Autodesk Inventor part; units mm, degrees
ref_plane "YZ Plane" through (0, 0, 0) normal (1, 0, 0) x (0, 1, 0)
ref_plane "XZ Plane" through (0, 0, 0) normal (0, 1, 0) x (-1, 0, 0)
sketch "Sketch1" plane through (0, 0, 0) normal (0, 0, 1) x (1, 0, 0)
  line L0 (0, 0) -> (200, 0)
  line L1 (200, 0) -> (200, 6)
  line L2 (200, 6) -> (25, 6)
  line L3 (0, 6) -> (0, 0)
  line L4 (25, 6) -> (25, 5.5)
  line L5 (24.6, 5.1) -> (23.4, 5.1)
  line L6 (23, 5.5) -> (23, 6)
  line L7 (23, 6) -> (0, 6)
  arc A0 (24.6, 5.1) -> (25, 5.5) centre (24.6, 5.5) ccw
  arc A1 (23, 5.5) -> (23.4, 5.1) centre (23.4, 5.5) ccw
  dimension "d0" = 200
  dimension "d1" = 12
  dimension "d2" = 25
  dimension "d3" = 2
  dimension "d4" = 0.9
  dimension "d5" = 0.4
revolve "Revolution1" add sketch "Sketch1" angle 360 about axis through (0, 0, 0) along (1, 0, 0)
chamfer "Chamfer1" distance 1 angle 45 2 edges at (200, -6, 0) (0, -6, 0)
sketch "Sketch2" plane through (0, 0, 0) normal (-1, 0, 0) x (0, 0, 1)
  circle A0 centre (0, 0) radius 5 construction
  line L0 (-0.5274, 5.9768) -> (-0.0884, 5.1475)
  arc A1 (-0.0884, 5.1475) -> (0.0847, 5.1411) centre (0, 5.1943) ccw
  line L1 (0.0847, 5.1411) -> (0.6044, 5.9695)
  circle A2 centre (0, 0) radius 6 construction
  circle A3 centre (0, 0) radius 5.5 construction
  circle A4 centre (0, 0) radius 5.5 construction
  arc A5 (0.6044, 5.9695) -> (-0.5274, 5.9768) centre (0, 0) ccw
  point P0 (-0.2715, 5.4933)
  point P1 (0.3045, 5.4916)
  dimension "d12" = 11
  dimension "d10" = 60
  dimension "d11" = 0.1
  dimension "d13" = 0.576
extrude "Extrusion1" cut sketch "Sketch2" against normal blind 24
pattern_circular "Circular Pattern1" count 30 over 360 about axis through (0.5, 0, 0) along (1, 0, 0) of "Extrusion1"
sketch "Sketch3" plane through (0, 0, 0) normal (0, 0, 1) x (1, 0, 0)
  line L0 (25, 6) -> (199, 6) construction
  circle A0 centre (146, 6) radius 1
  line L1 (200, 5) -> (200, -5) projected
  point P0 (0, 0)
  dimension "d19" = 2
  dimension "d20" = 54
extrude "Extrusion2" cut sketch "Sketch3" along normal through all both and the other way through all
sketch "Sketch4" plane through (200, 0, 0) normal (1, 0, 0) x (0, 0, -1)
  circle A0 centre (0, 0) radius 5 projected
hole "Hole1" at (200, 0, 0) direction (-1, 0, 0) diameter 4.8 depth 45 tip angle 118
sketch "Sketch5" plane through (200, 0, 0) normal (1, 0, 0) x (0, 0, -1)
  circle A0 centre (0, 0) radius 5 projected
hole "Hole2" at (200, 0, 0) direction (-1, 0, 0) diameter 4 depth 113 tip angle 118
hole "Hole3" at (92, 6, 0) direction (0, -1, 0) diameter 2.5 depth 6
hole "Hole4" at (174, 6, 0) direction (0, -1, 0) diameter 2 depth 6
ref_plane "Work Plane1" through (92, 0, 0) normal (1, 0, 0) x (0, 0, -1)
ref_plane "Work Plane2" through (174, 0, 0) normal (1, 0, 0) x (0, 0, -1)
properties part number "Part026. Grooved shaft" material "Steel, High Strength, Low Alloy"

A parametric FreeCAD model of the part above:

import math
import FreeCAD as App
import Part
import Sketcher

V = App.Vector


def edges_at(feature, points):
    """Names of the edges that pass closest to the given points."""
    edges = feature.Shape.Edges
    near = lambda p: min(range(len(edges)), key=lambda i: edges[i].distToShape(Part.Vertex(*p))[0])
    return sorted({f"Edge{near(p) + 1}" for p in points})

doc = App.newDocument("Part")
body = doc.addObject("PartDesign::Body", "Body")

# Sketch on XY plane
sketch1 = body.newObject("Sketcher::SketchObject", "Sketch")
sketch1.AttachmentSupport = (doc.getObject("XY_Plane"), [""])
sketch1.MapMode = "FlatFace"
sketch1.addGeometry([
    Part.LineSegment(V(0, 6, 0), V(0, 0, 0)),  # 0
    Part.LineSegment(V(0, 0, 0), V(200, 0, 0)),  # 1
    Part.LineSegment(V(200, 0, 0), V(200, 6, 0)),  # 2
    Part.LineSegment(V(200, 6, 0), V(25, 6, 0)),  # 3
    Part.LineSegment(V(25, 6, 0), V(25, 5.5, 0)),  # 4
    Part.ArcOfCircle(Part.Circle(V(24.6, 5.5, 0), V(0, 0, 1), 0.4), math.radians(-90), math.radians(0)),  # 5
    Part.LineSegment(V(24.6, 5.1, 0), V(23.4, 5.1, 0)),  # 6
    Part.ArcOfCircle(Part.Circle(V(23.4, 5.5, 0), V(0, 0, 1), 0.4), math.radians(180), math.radians(270)),  # 7
    Part.LineSegment(V(23, 5.5, 0), V(23, 6, 0)),  # 8
    Part.LineSegment(V(23, 6, 0), V(0, 6, 0)),  # 9
], False)
sketch1.addConstraint([
    Sketcher.Constraint("Coincident", 0, 2, 1, 1),
    Sketcher.Constraint("Coincident", 1, 2, 2, 1),
    Sketcher.Constraint("Coincident", 2, 2, 3, 1),
    Sketcher.Constraint("Coincident", 3, 2, 4, 1),
    Sketcher.Constraint("Tangent", 4, 2, 5, 2),
    Sketcher.Constraint("Tangent", 5, 1, 6, 1),
    Sketcher.Constraint("Tangent", 6, 2, 7, 2),
    Sketcher.Constraint("Tangent", 7, 1, 8, 1),
    Sketcher.Constraint("Coincident", 8, 2, 9, 1),
    Sketcher.Constraint("Coincident", 9, 2, 0, 1),
    Sketcher.Constraint("Vertical", 0),
    Sketcher.Constraint("Horizontal", 1),
    Sketcher.Constraint("Vertical", 2),
    Sketcher.Constraint("Horizontal", 3),
    Sketcher.Constraint("Vertical", 4),
    Sketcher.Constraint("Horizontal", 6),
    Sketcher.Constraint("Vertical", 8),
    Sketcher.Constraint("Horizontal", 9),
    Sketcher.Constraint("Coincident", 0, 2, -1, 1),
    Sketcher.Constraint("Equal", 5, 7),
    Sketcher.Constraint("Horizontal", 3, 2, 8, 2),
    Sketcher.Constraint("Radius", 5, 0.4),
    Sketcher.Constraint("DistanceX", 1, 1, 1, 2, 200.0),
    Sketcher.Constraint("DistanceX", -1, 1, 3, 2, 25.0),
    Sketcher.Constraint("DistanceX", 7, 1, 4, 2, 2.0),
    Sketcher.Constraint("DistanceY", 5, 1, 3, 2, 0.9),
    Sketcher.Constraint("DistanceY", 0, 2, 0, 1, 6.0),
])
revolution = body.newObject("PartDesign::Revolution", "Revolution")
revolution.Profile = sketch1
revolution.ReferenceAxis = (sketch1, ["H_Axis"])
revolution.Angle = 360
doc.recompute()

chamfer = body.newObject("PartDesign::Chamfer", "Chamfer")
chamfer.Base = (revolution, edges_at(revolution, [(200, -6, 0), (0, -6, 0)]))
chamfer.Size = 1

# Sketch on YZ plane
sketch2 = body.newObject("Sketcher::SketchObject", "Sketch001")
sketch2.AttachmentSupport = (doc.getObject("YZ_Plane"), [""])
sketch2.MapMode = "FlatFace"
sketch2.addGeometry([
    Part.ArcOfCircle(Part.Circle(V(0, 0, 0), V(0, 0, 1), 6), math.radians(-5.04), math.radians(5.78)),
    Part.LineSegment(V(5.98, -0.53, 0), V(5.15, -0.09, 0)),
    Part.ArcOfCircle(Part.Circle(V(5.19, 0, 0), V(0, 0, 1), 0.1), math.radians(122), math.radians(242)),
    Part.LineSegment(V(5.14, 0.08, 0), V(5.97, 0.6, 0)),
], False)
sketch2.addConstraint([
    Sketcher.Constraint("Coincident", 0, 1, 1, 1),
    Sketcher.Constraint("Tangent", 1, 2, 2, 2),
    Sketcher.Constraint("Coincident", 2, 1, 3, 1),
    Sketcher.Constraint("Coincident", 3, 2, 0, 2),
    Sketcher.Constraint("Coincident", 0, 3, -1, 1),
    Sketcher.Constraint("PointOnObject", 2, 3, -1),
    Sketcher.Constraint("Radius", 2, 0.1),
    Sketcher.Constraint("Radius", 0, 6.0),
    Sketcher.Constraint("Distance", 3, 0.978),
    Sketcher.Constraint("DistanceX", -1, 1, 2, 1, 5.141),
    Sketcher.Constraint("DistanceY", 0, 1, 1, 2, 0.439),
    Sketcher.Constraint("DistanceY", 1, 2, 2, 1, 0.173),
])
pocket1 = body.newObject("PartDesign::Pocket", "Pocket")
pocket1.Profile = sketch2
pocket1.Length = 24
pocket1.Reversed = True
doc.recompute()

polarpattern = body.newObject("PartDesign::PolarPattern", "PolarPattern")
polarpattern.Originals = [pocket1]
polarpattern.Axis = (doc.getObject("X_Axis"), [""])
polarpattern.Angle = 360
polarpattern.Occurrences = 30
body.Tip = polarpattern

# Sketch on XY plane
sketch3 = body.newObject("Sketcher::SketchObject", "Sketch002")
sketch3.AttachmentSupport = (doc.getObject("XY_Plane"), [""])
sketch3.MapMode = "FlatFace"
sketch3.addGeometry(Part.Circle(V(146, 6, 0), V(0, 0, 1), 1), False)
sketch3.addConstraint([
    Sketcher.Constraint("Diameter", 0, 2.0),
    Sketcher.Constraint("DistanceX", -1, 1, 0, 3, 146.0),
    Sketcher.Constraint("DistanceY", -1, 1, 0, 3, 6.0),
])
pocket2 = body.newObject("PartDesign::Pocket", "Pocket001")
pocket2.Profile = sketch3
pocket2.Type = "ThroughAll"
pocket2.Midplane = True

# Sketch on YZ plane
sketch4 = body.newObject("Sketcher::SketchObject", "Sketch003")
sketch4.AttachmentSupport = (doc.getObject("YZ_Plane"), [""])
sketch4.MapMode = "FlatFace"
sketch4.AttachmentOffset = App.Placement(V(0, 0, 200), App.Rotation())
sketch4.addGeometry(Part.Circle(V(0, 0, 0), V(0, 0, 1), 2.4), False)
sketch4.addConstraint([
    Sketcher.Constraint("Coincident", 0, 3, -1, 1),
    Sketcher.Constraint("Diameter", 0, 4.8),
])
doc.recompute()
hole = body.newObject("PartDesign::Hole", "Hole")
hole.Profile = sketch4
hole.ThreadType = "None"
hole.Diameter = 4.8
hole.DepthType = "Dimension"
hole.Depth = 45
hole.DrillPoint = "Angled"
hole.DrillPointAngle = 118

# Sketch on YZ plane
sketch5 = body.newObject("Sketcher::SketchObject", "Sketch004")
sketch5.AttachmentSupport = (doc.getObject("YZ_Plane"), [""])
sketch5.MapMode = "FlatFace"
sketch5.AttachmentOffset = App.Placement(V(0, 0, 200), App.Rotation())
sketch5.addGeometry(Part.Circle(V(0, 0, 0), V(0, 0, 1), 2), False)
sketch5.addConstraint([
    Sketcher.Constraint("Coincident", 0, 3, -1, 1),
    Sketcher.Constraint("Diameter", 0, 4.0),
])
doc.recompute()
hole2 = body.newObject("PartDesign::Hole", "Hole001")
hole2.Profile = sketch5
hole2.ThreadType = "None"
hole2.Diameter = 4
hole2.DepthType = "Dimension"
hole2.Depth = 113
hole2.DrillPoint = "Angled"
hole2.DrillPointAngle = 118

# Sketch on XZ plane
sketch6 = body.newObject("Sketcher::SketchObject", "Sketch005")
sketch6.AttachmentSupport = (doc.getObject("XZ_Plane"), [""])
sketch6.MapMode = "FlatFace"
sketch6.AttachmentOffset = App.Placement(V(0, 0, -6), App.Rotation())
sketch6.addGeometry(Part.Circle(V(92, 0, 0), V(0, 0, 1), 1.2), False)
sketch6.addConstraint([
    Sketcher.Constraint("PointOnObject", 0, 3, -1),
    Sketcher.Constraint("Diameter", 0, 2.5),
    Sketcher.Constraint("DistanceX", -1, 1, 0, 3, 92.0),
])
doc.recompute()
hole3 = body.newObject("PartDesign::Hole", "Hole002")
hole3.Profile = sketch6
hole3.ThreadType = "None"
hole3.Diameter = 2.5
hole3.DepthType = "Dimension"
hole3.Depth = 6
hole3.DrillPoint = "Flat"
hole3.Reversed = True

# Sketch on XZ plane
sketch7 = body.newObject("Sketcher::SketchObject", "Sketch006")
sketch7.AttachmentSupport = (doc.getObject("XZ_Plane"), [""])
sketch7.MapMode = "FlatFace"
sketch7.AttachmentOffset = App.Placement(V(0, 0, -6), App.Rotation())
sketch7.addGeometry(Part.Circle(V(174, 0, 0), V(0, 0, 1), 1), False)
sketch7.addConstraint([
    Sketcher.Constraint("PointOnObject", 0, 3, -1),
    Sketcher.Constraint("Diameter", 0, 2.0),
    Sketcher.Constraint("DistanceX", -1, 1, 0, 3, 174.0),
])
doc.recompute()
hole4 = body.newObject("PartDesign::Hole", "Hole003")
hole4.Profile = sketch7
hole4.ThreadType = "None"
hole4.Diameter = 2
hole4.DepthType = "Dimension"
hole4.Depth = 6
hole4.DrillPoint = "Flat"
hole4.Reversed = True

doc.recompute()
